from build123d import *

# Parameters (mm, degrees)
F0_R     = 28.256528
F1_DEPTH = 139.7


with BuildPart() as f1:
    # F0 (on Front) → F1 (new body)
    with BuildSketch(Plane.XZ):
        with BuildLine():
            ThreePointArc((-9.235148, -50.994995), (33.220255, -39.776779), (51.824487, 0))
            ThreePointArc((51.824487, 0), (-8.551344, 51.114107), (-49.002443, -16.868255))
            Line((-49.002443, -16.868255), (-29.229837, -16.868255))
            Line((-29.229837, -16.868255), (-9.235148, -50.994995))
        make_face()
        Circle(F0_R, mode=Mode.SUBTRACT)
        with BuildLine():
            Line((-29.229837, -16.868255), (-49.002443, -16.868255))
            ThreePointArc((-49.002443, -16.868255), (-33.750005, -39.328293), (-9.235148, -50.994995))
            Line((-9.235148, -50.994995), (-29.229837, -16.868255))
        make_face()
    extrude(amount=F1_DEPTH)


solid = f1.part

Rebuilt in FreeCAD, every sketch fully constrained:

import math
import FreeCAD as App
import Part
import Sketcher
from FreeCAD import Vector
Q = App.Units.Quantity

doc = App.newDocument("Part")
body = doc.addObject("PartDesign::Body", "Body")

# Sketch on XZ plane
sketch1 = body.newObject("Sketcher::SketchObject", "Sketch")
sketch1.AttachmentSupport = (doc.getObject("XZ_Plane"), [""])
sketch1.MapMode = "FlatFace"
sketch1.addGeometry([
    Part.ArcOfCircle(Part.Circle(Vector(0, 0, 0), Vector(0, 0, 1), 52), math.radians(-100), math.radians(0)),
    Part.ArcOfCircle(Part.Circle(Vector(0, 0, 0), Vector(0, 0, 1), 52), math.radians(0), math.radians(199)),
    Part.ArcOfCircle(Part.Circle(Vector(0, 0, 0), Vector(0, 0, 1), 52), math.radians(-161), math.radians(-100)),
    Part.Circle(Vector(0, 0, 0), Vector(0, 0, 1), 28),
], False)
sketch1.addConstraint([
    Sketcher.Constraint("Tangent", 0, 2, 1, 1),
    Sketcher.Constraint("Tangent", 1, 2, 2, 1),
    Sketcher.Constraint("Tangent", 2, 2, 0, 1),
    Sketcher.Constraint("Coincident", 0, 3, -1, 1),
    Sketcher.Constraint("Coincident", 3, 3, -1, 1),
    Sketcher.Constraint("PointOnObject", 0, 2, -1),
    Sketcher.Constraint("Diameter", 3, 56.513056),
    Sketcher.Constraint("Radius", 0, 51.824487),
    Sketcher.Constraint("DistanceX", 2, 2, -1, 1, 9.235148),
    Sketcher.Constraint("DistanceX", 1, 2, 0, 2, 100.82693),
])
pad1 = body.newObject("PartDesign::Pad", "Pad")
pad1.Profile = sketch1
pad1.Length = Q("5.5 in")

doc.recompute()
